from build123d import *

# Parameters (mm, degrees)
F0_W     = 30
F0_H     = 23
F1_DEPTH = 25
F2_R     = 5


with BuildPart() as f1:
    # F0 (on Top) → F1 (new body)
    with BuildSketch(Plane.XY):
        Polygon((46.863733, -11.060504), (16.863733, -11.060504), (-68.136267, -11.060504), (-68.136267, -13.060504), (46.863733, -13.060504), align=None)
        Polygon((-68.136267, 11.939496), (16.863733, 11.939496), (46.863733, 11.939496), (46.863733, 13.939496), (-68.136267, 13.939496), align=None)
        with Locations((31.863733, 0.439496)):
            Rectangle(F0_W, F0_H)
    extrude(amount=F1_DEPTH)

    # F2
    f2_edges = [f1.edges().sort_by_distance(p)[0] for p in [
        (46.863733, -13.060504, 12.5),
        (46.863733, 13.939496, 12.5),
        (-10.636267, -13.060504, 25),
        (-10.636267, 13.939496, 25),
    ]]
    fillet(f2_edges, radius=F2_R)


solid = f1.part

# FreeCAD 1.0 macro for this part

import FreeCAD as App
import Part
import Sketcher
from FreeCAD import Vector


def edges_at(feature, points):
    """Names of the edges that pass closest to the given points."""
    edges = feature.Shape.Edges
    near = lambda p: min(range(len(edges)), key=lambda i: edges[i].distToShape(Part.Vertex(*p))[0])
    return sorted({f"Edge{near(p) + 1}" for p in points})

doc = App.newDocument("Part")
params = doc.addObject("Spreadsheet::Sheet", "Params")
for row, (alias, value) in enumerate([
    ("sketch1_width", "85 mm"),
    ("sketch1_width2", "115 mm"),
    ("sketch1_height", "2 mm"),
    ("sketch1_height2", "27 mm"),
    ("pad1_length", "25 mm"),
    ("fillet_radius", "5 mm"),
], start=1):
    params.set(f"A{row}", alias)
    params.set(f"B{row}", "=" + value)
    params.setAlias(f"B{row}", alias)

body = doc.addObject("PartDesign::Body", "Body")

# Sketch on XY plane
sketch1 = body.newObject("Sketcher::SketchObject", "Sketch")
sketch1.AttachmentSupport = (doc.getObject("XY_Plane"), [""])
sketch1.MapMode = "FlatFace"
sketch1.addGeometry([
    Part.LineSegment(Vector(16.9, -11.1, 0), Vector(-68.1, -11.1, 0)),  # 0
    Part.LineSegment(Vector(-68.1, -11.1, 0), Vector(-68.1, -13.1, 0)),  # 1
    Part.LineSegment(Vector(-68.1, -13.1, 0), Vector(46.9, -13.1, 0)),  # 2
    Part.LineSegment(Vector(46.9, -13.1, 0), Vector(46.9, 13.9, 0)),  # 3
    Part.LineSegment(Vector(46.9, 13.9, 0), Vector(-68.1, 13.9, 0)),  # 4
    Part.LineSegment(Vector(-68.1, 13.9, 0), Vector(-68.1, 11.9, 0)),  # 5
    Part.LineSegment(Vector(-68.1, 11.9, 0), Vector(16.9, 11.9, 0)),  # 6
    Part.LineSegment(Vector(16.9, 11.9, 0), Vector(16.9, -11.1, 0)),  # 7
], False)
sketch1.addConstraint([
    Sketcher.Constraint("Coincident", 0, 2, 1, 1),
    Sketcher.Constraint("Coincident", 1, 2, 2, 1),
    Sketcher.Constraint("Coincident", 2, 2, 3, 1),
    Sketcher.Constraint("Coincident", 3, 2, 4, 1),
    Sketcher.Constraint("Coincident", 4, 2, 5, 1),
    Sketcher.Constraint("Coincident", 5, 2, 6, 1),
    Sketcher.Constraint("Coincident", 6, 2, 7, 1),
    Sketcher.Constraint("Coincident", 7, 2, 0, 1),
    Sketcher.Constraint("Horizontal", 0),
    Sketcher.Constraint("Vertical", 1),
    Sketcher.Constraint("Horizontal", 2),
    Sketcher.Constraint("Vertical", 3),
    Sketcher.Constraint("Horizontal", 4),
    Sketcher.Constraint("Vertical", 5),
    Sketcher.Constraint("Horizontal", 6),
    Sketcher.Constraint("Vertical", 7),
    Sketcher.Constraint("Vertical", 1, 2, 4, 2),
    Sketcher.Constraint("Equal", 1, 5),
    Sketcher.Constraint("DistanceX", 0, 2, 0, 1, 85.0),
    Sketcher.Constraint("DistanceX", 2, 1, 2, 2, 115.0),
    Sketcher.Constraint("DistanceY", 1, 2, 1, 1, 2.0),
    Sketcher.Constraint("DistanceY", 3, 1, 3, 2, 27.0),
    Sketcher.Constraint("DistanceX", 0, 2, -1, 1, 68.136267),
    Sketcher.Constraint("DistanceY", 0, 2, -1, 1, 11.060504),
])
sketch1.setExpression("Constraints[18]", "Params.sketch1_width")
sketch1.setExpression("Constraints[19]", "Params.sketch1_width2")
sketch1.setExpression("Constraints[20]", "Params.sketch1_height")
sketch1.setExpression("Constraints[21]", "Params.sketch1_height2")
pad1 = body.newObject("PartDesign::Pad", "Pad")
pad1.Profile = sketch1
pad1.setExpression("Length", "Params.pad1_length")
doc.recompute()

fillet = body.newObject("PartDesign::Fillet", "Fillet")
fillet.Base = (pad1, edges_at(pad1, [
    (46.864, -13.061, 12.5),
    (46.864, 13.939, 12.5),
    (-10.636, -13.061, 25),
    (-10.636, 13.939, 25),
]))
fillet.setExpression("Radius", "Params.fillet_radius")

doc.recompute()
